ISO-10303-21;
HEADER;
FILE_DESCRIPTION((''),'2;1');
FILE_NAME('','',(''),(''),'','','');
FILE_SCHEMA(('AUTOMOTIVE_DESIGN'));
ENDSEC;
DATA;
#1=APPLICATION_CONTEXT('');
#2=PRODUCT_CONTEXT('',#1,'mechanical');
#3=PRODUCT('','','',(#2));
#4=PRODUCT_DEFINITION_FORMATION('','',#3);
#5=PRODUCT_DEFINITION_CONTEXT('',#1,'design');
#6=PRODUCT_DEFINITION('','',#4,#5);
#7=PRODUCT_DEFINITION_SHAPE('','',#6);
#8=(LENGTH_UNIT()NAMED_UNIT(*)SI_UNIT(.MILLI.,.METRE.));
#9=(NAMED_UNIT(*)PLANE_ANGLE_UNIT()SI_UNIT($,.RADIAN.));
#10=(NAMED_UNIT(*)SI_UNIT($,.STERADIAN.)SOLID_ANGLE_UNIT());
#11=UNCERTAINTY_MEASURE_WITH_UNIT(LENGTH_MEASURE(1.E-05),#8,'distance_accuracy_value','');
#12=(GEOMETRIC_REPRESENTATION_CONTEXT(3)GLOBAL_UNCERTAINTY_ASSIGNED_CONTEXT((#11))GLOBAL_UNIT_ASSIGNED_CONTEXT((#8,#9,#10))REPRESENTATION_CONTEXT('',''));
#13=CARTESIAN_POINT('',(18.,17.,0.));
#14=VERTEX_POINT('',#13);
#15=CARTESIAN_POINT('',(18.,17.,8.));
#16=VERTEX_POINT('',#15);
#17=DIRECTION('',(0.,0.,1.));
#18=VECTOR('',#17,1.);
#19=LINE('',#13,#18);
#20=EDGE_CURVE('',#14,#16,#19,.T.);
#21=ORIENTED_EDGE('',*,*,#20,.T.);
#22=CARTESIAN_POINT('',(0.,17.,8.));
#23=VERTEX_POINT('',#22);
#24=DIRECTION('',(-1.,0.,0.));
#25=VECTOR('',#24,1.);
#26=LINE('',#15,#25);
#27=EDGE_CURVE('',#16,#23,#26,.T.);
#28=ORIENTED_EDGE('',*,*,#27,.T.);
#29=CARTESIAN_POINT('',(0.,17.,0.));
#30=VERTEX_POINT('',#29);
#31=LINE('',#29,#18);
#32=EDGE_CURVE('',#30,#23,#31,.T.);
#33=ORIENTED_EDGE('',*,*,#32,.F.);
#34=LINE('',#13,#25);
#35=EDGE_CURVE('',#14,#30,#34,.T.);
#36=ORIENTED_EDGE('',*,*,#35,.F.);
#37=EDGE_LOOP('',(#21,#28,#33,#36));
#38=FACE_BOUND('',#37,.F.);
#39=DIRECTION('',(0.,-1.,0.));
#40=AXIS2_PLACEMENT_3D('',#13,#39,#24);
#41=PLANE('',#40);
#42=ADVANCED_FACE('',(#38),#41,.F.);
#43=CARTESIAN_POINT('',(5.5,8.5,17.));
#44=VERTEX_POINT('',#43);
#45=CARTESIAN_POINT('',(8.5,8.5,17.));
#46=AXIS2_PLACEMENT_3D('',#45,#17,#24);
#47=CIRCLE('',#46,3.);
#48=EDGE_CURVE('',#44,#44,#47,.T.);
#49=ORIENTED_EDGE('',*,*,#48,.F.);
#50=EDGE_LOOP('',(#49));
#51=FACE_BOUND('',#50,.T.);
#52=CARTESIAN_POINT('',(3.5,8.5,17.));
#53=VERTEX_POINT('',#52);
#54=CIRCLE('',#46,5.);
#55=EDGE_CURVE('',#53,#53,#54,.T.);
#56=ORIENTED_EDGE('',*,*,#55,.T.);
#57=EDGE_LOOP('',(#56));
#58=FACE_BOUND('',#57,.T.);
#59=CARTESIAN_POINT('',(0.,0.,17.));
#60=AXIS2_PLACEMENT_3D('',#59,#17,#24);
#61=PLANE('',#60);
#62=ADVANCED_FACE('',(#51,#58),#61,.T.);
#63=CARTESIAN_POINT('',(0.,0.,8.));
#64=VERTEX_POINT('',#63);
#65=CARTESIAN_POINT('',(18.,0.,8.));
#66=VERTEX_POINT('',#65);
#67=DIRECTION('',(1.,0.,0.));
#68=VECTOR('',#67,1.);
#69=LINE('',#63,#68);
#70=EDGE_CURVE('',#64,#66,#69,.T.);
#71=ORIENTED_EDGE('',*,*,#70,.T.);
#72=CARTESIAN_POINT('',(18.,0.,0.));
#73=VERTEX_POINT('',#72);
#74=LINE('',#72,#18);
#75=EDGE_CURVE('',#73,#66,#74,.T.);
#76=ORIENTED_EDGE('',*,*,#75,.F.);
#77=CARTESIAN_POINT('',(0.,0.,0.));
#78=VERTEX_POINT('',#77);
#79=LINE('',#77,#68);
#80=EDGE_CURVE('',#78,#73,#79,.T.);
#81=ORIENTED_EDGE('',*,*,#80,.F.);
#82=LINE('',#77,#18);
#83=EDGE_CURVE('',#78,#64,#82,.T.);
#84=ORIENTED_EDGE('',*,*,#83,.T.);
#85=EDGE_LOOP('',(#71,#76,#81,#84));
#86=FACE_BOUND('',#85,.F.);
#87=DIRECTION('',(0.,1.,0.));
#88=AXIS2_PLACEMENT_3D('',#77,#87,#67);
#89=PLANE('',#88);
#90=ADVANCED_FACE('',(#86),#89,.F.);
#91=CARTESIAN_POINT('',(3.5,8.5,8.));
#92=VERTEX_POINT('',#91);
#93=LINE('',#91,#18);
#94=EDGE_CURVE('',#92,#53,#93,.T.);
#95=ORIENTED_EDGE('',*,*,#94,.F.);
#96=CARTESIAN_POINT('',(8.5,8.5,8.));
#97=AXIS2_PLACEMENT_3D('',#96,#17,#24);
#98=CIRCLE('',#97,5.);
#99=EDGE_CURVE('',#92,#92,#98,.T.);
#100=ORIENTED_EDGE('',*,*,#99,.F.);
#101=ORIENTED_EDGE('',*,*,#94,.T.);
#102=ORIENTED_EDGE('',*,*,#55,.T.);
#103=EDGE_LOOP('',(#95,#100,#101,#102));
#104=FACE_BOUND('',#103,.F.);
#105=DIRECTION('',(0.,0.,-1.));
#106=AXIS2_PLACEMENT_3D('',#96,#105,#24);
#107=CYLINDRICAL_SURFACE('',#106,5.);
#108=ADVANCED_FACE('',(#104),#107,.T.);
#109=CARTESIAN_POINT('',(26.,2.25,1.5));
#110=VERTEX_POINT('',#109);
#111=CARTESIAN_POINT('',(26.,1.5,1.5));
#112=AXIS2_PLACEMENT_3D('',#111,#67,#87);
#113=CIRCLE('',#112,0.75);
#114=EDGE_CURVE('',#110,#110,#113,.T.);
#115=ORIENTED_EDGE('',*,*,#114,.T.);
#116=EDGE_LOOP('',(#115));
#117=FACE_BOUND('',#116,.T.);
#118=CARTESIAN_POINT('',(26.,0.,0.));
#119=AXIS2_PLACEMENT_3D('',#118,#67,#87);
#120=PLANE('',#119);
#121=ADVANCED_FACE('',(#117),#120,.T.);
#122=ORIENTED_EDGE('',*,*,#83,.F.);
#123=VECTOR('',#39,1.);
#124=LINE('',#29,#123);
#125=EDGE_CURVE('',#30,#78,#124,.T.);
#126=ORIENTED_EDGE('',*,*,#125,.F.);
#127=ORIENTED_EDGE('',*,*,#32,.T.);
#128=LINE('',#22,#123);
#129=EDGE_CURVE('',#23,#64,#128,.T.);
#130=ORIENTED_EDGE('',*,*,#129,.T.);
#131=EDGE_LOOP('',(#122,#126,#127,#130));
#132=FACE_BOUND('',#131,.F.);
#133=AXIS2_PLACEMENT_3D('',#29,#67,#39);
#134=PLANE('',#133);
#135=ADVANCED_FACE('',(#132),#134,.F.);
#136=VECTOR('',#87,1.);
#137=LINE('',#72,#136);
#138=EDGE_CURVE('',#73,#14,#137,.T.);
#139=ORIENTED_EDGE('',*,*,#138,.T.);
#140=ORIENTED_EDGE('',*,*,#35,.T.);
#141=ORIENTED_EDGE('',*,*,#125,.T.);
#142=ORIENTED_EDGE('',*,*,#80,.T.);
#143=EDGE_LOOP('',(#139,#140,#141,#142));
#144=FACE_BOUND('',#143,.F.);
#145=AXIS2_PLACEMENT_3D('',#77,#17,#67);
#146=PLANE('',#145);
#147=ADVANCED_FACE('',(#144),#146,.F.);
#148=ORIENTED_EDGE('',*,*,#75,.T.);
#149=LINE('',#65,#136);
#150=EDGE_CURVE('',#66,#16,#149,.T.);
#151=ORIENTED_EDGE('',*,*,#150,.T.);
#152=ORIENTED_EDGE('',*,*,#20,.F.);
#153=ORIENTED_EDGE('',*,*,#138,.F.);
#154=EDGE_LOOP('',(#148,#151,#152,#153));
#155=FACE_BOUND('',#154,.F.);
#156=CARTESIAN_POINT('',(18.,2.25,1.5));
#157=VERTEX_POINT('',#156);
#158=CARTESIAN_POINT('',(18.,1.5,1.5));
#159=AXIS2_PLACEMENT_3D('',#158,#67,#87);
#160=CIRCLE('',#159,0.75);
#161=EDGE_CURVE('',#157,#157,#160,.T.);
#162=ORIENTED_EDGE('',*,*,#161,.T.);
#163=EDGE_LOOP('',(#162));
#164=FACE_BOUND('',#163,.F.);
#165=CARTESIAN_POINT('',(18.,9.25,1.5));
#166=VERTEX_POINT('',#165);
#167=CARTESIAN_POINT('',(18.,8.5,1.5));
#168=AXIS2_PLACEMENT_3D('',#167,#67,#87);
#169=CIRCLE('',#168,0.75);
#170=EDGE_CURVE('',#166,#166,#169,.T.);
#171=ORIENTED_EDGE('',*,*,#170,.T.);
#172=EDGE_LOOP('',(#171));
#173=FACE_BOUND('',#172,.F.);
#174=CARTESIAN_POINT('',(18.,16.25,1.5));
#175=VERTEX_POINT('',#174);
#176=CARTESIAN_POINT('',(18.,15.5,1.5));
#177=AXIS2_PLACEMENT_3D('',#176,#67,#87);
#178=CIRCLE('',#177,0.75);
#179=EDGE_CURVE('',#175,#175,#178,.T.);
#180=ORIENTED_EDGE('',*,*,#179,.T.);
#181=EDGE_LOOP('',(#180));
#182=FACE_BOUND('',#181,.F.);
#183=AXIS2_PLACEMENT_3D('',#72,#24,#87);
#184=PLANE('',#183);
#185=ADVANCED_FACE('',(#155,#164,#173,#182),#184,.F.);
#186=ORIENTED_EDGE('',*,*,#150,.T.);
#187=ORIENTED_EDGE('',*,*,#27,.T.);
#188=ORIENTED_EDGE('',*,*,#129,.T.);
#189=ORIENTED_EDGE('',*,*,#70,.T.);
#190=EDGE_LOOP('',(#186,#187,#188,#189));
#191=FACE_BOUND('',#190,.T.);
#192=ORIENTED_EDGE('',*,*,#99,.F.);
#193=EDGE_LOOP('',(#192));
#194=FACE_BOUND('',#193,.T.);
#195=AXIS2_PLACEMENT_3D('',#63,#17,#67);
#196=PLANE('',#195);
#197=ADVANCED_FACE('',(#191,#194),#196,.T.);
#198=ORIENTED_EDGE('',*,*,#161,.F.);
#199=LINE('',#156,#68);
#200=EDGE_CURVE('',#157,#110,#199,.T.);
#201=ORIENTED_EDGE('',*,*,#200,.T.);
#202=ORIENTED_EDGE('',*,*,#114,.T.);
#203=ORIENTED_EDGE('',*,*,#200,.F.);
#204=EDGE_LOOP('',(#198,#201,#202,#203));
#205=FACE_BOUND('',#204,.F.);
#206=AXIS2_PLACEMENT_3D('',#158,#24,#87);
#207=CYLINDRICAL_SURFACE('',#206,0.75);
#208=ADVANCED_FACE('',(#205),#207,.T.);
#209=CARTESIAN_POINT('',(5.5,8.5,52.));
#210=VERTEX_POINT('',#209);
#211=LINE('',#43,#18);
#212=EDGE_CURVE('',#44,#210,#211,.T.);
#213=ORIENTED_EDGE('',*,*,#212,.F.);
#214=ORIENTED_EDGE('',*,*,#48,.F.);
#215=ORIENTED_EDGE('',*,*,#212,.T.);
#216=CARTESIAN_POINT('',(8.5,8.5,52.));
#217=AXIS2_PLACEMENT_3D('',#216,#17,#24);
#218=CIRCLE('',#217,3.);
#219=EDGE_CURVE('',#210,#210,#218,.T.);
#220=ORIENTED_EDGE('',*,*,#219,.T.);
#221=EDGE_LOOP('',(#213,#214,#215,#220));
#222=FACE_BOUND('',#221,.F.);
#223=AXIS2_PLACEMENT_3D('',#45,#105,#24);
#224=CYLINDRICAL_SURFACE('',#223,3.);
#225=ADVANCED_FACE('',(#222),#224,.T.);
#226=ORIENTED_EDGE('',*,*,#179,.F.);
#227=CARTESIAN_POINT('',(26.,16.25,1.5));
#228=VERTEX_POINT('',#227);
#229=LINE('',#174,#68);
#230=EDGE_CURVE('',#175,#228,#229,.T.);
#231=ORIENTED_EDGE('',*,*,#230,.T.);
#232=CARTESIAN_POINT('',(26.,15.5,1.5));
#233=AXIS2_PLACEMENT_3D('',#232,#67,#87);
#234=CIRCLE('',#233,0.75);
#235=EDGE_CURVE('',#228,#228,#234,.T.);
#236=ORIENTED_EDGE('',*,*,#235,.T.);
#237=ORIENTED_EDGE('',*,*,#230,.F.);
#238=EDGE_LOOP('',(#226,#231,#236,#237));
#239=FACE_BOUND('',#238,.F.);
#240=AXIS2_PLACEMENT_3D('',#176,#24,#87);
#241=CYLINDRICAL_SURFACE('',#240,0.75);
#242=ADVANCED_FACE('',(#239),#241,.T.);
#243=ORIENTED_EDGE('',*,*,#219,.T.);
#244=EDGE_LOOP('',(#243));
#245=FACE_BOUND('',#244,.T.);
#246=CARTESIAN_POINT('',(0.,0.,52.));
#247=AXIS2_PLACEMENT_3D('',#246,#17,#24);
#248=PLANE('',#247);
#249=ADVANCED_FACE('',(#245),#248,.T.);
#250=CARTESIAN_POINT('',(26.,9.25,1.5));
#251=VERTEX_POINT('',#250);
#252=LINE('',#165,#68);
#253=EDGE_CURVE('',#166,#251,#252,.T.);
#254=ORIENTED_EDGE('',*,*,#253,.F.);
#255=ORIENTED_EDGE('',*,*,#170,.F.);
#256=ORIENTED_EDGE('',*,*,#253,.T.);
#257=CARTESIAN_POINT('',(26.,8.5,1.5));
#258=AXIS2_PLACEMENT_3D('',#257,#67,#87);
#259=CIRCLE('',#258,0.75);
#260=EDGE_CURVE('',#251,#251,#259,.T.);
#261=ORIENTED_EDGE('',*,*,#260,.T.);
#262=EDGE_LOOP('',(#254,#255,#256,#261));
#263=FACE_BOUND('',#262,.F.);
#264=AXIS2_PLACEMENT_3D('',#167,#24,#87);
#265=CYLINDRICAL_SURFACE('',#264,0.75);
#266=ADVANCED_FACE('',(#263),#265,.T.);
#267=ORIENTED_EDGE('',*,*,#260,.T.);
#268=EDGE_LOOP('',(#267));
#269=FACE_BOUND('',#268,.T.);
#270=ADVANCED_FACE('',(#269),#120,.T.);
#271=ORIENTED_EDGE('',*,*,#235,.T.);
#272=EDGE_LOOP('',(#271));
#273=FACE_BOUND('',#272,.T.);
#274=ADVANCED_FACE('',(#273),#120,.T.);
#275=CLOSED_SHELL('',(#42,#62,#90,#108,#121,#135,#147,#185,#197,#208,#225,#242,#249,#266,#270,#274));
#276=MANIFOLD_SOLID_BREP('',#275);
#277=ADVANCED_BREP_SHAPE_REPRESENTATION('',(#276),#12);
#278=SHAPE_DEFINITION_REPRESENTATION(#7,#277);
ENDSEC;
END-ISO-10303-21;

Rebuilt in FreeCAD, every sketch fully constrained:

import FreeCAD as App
import Part
import Sketcher
from FreeCAD import Vector


def add_polygon(sketch, points):
    """Adds a closed chain of lines whose ends are joined by coincident constraints."""
    first, n = sketch.GeometryCount, len(points)
    for a, b in zip(points, points[1:] + points[:1]):
        sketch.addGeometry(Part.LineSegment(App.Vector(*a, 0), App.Vector(*b, 0)), False)
    for i in range(n):
        sketch.addConstraint(Sketcher.Constraint("Coincident", first + i, 2, first + (i + 1) % n, 1))

doc = App.newDocument("Part")
params = doc.addObject("Spreadsheet::Sheet", "Params")
for row, (alias, value) in enumerate([
    ("sketch1_width", "18 mm"),
    ("sketch1_height", "17 mm"),
    ("pad1_length", "8 mm"),
    ("sketch2_diameter", "1.5 mm"),
    ("pad2_length", "8 mm"),
    ("sketch3_diameter", "10 mm"),
    ("pad3_length", "9 mm"),
    ("sketch4_diameter", "6 mm"),
    ("pad4_length", "35 mm"),
], start=1):
    params.set(f"A{row}", alias)
    params.set(f"B{row}", "=" + value)
    params.setAlias(f"B{row}", alias)

body = doc.addObject("PartDesign::Body", "Body")

# Sketch on XY plane
sketch1 = body.newObject("Sketcher::SketchObject", "Sketch")
sketch1.AttachmentSupport = (doc.getObject("XY_Plane"), [""])
sketch1.MapMode = "FlatFace"
add_polygon(sketch1, [(0, 17), (0, 0), (18, 0), (18, 17)])  # lines 0-3
sketch1.addConstraint([
    Sketcher.Constraint("Vertical", 0),
    Sketcher.Constraint("Horizontal", 1),
    Sketcher.Constraint("Vertical", 2),
    Sketcher.Constraint("Horizontal", 3),
    Sketcher.Constraint("Coincident", 0, 2, -1, 1),
    Sketcher.Constraint("DistanceX", 1, 1, 1, 2, 18.0),
    Sketcher.Constraint("DistanceY", 0, 2, 0, 1, 17.0),
])
sketch1.setExpression("Constraints[9]", "Params.sketch1_width")
sketch1.setExpression("Constraints[10]", "Params.sketch1_height")
pad1 = body.newObject("PartDesign::Pad", "Pad")
pad1.Profile = sketch1
pad1.setExpression("Length", "Params.pad1_length")

# Sketch on YZ plane
sketch2 = body.newObject("Sketcher::SketchObject", "Sketch001")
sketch2.AttachmentSupport = (doc.getObject("YZ_Plane"), [""])
sketch2.MapMode = "FlatFace"
sketch2.AttachmentOffset = App.Placement(Vector(0, 0, 18), App.Rotation())
sketch2.addGeometry([
    Part.Circle(Vector(1.5, 1.5, 0), Vector(0, 0, 1), 0.8),
    Part.Circle(Vector(8.5, 1.5, 0), Vector(0, 0, 1), 0.8),
    Part.Circle(Vector(15.5, 1.5, 0), Vector(0, 0, 1), 0.8),
], False)
sketch2.addConstraint([
    Sketcher.Constraint("Equal", 0, 1),
    Sketcher.Constraint("Equal", 1, 2),
    Sketcher.Constraint("Horizontal", 0, 3, 1, 3),
    Sketcher.Constraint("Horizontal", 1, 3, 2, 3),
    Sketcher.Constraint("Diameter", 0, 1.5),
    Sketcher.Constraint("DistanceX", 0, 3, 2, 3, 14.0),
    Sketcher.Constraint("DistanceX", -1, 1, 0, 3, 1.5),
    Sketcher.Constraint("DistanceY", -1, 1, 0, 3, 1.5),
    Sketcher.Constraint("DistanceX", 0, 3, 1, 3, 7.0),
])
sketch2.setExpression("Constraints[4]", "Params.sketch2_diameter")
pad2 = body.newObject("PartDesign::Pad", "Pad001")
pad2.Profile = sketch2
pad2.setExpression("Length", "Params.pad2_length")

# Sketch on XY plane
sketch3 = body.newObject("Sketcher::SketchObject", "Sketch002")
sketch3.AttachmentSupport = (doc.getObject("XY_Plane"), [""])
sketch3.MapMode = "FlatFace"
sketch3.AttachmentOffset = App.Placement(Vector(0, 0, 8), App.Rotation())
sketch3.addGeometry(Part.Circle(Vector(8, 8, 0), Vector(0, 0, 1), 5), False)
sketch3.addConstraint([
    Sketcher.Constraint("Diameter", 0, 10.0),
    Sketcher.Constraint("DistanceX", -1, 1, 0, 3, 8.5),
    Sketcher.Constraint("DistanceY", -1, 1, 0, 3, 8.5),
])
sketch3.setExpression("Constraints[0]", "Params.sketch3_diameter")
pad3 = body.newObject("PartDesign::Pad", "Pad002")
pad3.Profile = sketch3
pad3.setExpression("Length", "Params.pad3_length")

# Sketch on XY plane
sketch4 = body.newObject("Sketcher::SketchObject", "Sketch003")
sketch4.AttachmentSupport = (doc.getObject("XY_Plane"), [""])
sketch4.MapMode = "FlatFace"
sketch4.AttachmentOffset = App.Placement(Vector(0, 0, 17), App.Rotation())
sketch4.addGeometry(Part.Circle(Vector(8.5, 8.5, 0), Vector(0, 0, 1), 3), False)
sketch4.addConstraint([
    Sketcher.Constraint("Diameter", 0, 6.0),
    Sketcher.Constraint("DistanceX", -1, 1, 0, 3, 8.5),
    Sketcher.Constraint("DistanceY", -1, 1, 0, 3, 8.5),
])
sketch4.setExpression("Constraints[0]", "Params.sketch4_diameter")
pad4 = body.newObject("PartDesign::Pad", "Pad003")
pad4.Profile = sketch4
pad4.setExpression("Length", "Params.pad4_length")

doc.recompute()
